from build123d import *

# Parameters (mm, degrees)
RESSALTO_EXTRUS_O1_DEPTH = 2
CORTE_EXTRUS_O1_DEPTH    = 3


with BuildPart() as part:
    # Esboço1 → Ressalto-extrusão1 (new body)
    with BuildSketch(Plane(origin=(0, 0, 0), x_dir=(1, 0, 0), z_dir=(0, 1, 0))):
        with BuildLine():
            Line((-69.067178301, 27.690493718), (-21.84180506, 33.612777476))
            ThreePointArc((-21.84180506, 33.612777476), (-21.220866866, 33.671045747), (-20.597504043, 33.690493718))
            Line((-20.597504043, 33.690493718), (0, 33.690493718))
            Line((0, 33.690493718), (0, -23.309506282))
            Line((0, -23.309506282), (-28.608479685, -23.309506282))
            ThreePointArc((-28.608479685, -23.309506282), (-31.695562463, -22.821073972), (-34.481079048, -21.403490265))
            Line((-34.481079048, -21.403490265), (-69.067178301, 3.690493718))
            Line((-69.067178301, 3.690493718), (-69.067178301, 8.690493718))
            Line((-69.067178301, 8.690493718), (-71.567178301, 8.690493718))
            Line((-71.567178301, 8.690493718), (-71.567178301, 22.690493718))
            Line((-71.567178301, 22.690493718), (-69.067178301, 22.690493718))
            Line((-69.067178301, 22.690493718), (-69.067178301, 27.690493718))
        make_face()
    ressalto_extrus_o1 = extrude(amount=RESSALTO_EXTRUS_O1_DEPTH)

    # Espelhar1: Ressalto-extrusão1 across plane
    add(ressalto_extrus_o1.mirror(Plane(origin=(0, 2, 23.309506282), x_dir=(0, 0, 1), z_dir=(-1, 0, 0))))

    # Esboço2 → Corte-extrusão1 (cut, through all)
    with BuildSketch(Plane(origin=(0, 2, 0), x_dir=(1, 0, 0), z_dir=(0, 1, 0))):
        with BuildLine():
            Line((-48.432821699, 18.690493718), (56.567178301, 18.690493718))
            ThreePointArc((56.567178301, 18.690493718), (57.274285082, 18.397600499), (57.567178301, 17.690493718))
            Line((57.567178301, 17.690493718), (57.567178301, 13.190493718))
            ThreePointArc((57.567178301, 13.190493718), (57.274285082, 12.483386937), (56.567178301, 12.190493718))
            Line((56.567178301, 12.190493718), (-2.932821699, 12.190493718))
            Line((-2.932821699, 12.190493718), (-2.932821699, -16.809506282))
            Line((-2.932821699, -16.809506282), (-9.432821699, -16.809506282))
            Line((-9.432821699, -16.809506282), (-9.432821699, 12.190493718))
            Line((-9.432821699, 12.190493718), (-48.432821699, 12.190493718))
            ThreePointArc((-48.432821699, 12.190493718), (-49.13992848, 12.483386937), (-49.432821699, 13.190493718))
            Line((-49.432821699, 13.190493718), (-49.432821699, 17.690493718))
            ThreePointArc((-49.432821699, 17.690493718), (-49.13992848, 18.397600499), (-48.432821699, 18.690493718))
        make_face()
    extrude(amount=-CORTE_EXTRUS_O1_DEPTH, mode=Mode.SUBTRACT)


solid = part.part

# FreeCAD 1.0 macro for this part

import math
import FreeCAD as App
import Part
import Sketcher
from FreeCAD import Vector

doc = App.newDocument("Part")
params = doc.addObject("Spreadsheet::Sheet", "Params")
for row, (alias, value) in enumerate([
    ("sketch1_radius", "10 mm"),
    ("sketch1_height", "5 mm"),
    ("sketch1_height2", "14 mm"),
    ("sketch1_height3", "57 mm"),
    ("sketch1_width", "2.5 mm"),
    ("pad1_length", "2 mm"),
    ("sketch2_radius", "1 mm"),
    ("sketch2_width", "105 mm"),
    ("sketch2_width2", "39 mm"),
    ("sketch2_height", "29 mm"),
    ("sketch2_width3", "6.5 mm"),
], start=1):
    params.set(f"A{row}", alias)
    params.set(f"B{row}", "=" + value)
    params.setAlias(f"B{row}", alias)

body = doc.addObject("PartDesign::Body", "Body")

# Sketch on XZ plane
sketch1 = body.newObject("Sketcher::SketchObject", "Sketch")
sketch1.AttachmentSupport = (doc.getObject("XZ_Plane"), [""])
sketch1.MapMode = "FlatFace"
sketch1.addGeometry(Part.LineSegment(Vector(-21.8, -33.6, 0), Vector(-69.1, -27.7, 0)), False)
sketch1.addGeometry(Part.LineSegment(Vector(-69.1, -27.7, 0), Vector(-69.1, -22.7, 0)), False)
sketch1.addGeometry(Part.LineSegment(Vector(-69.1, -22.7, 0), Vector(-71.6, -22.7, 0)), False)
sketch1.addGeometry(Part.LineSegment(Vector(-71.6, -22.7, 0), Vector(-71.6, -8.7, 0)), False)
sketch1.addGeometry(Part.LineSegment(Vector(-71.6, -8.7, 0), Vector(-69.1, -8.7, 0)), False)
sketch1.addGeometry(Part.LineSegment(Vector(-69.1, -8.7, 0), Vector(-69.1, -3.7, 0)), False)
sketch1.addGeometry(Part.LineSegment(Vector(-69.1, -3.7, 0), Vector(-34.5, 21.4, 0)), False)
sketch1.addGeometry(Part.ArcOfCircle(Part.Circle(Vector(-28.6, 13.3, 0), Vector(0, 0, 1), 10), math.radians(90), math.radians(126)), False)
sketch1.addGeometry(Part.LineSegment(Vector(-28.6, 23.3, 0), Vector(0, 23.3, 0)), False)
sketch1.addGeometry(Part.LineSegment(Vector(0, 23.3, 0), Vector(0, -33.7, 0)), False)
sketch1.addGeometry(Part.LineSegment(Vector(0, -33.7, 0), Vector(-20.6, -33.7, 0)), False)
sketch1.addGeometry(Part.ArcOfCircle(Part.Circle(Vector(-20.6, -23.7, 0), Vector(0, 0, 1), 10), math.radians(-97.15), math.radians(-90)), False)
sketch1.addConstraint(Sketcher.Constraint("Coincident", 0, 2, 1, 1))
sketch1.addConstraint(Sketcher.Constraint("Coincident", 1, 2, 2, 1))
sketch1.addConstraint(Sketcher.Constraint("Coincident", 2, 2, 3, 1))
sketch1.addConstraint(Sketcher.Constraint("Coincident", 3, 2, 4, 1))
sketch1.addConstraint(Sketcher.Constraint("Coincident", 4, 2, 5, 1))
sketch1.addConstraint(Sketcher.Constraint("Coincident", 5, 2, 6, 1))
sketch1.addConstraint(Sketcher.Constraint("Tangent", 6, 2, 7, 2))
sketch1.addConstraint(Sketcher.Constraint("Tangent", 7, 1, 8, 1))
sketch1.addConstraint(Sketcher.Constraint("Coincident", 8, 2, 9, 1))
sketch1.addConstraint(Sketcher.Constraint("Coincident", 9, 2, 10, 1))
sketch1.addConstraint(Sketcher.Constraint("Tangent", 10, 2, 11, 2))
sketch1.addConstraint(Sketcher.Constraint("Tangent", 11, 1, 0, 1))
sketch1.addConstraint(Sketcher.Constraint("Vertical", 1))
sketch1.addConstraint(Sketcher.Constraint("Horizontal", 2))
sketch1.addConstraint(Sketcher.Constraint("Vertical", 3))
sketch1.addConstraint(Sketcher.Constraint("Horizontal", 4))
sketch1.addConstraint(Sketcher.Constraint("Vertical", 5))
sketch1.addConstraint(Sketcher.Constraint("Horizontal", 8))
sketch1.addConstraint(Sketcher.Constraint("Vertical", 9))
sketch1.addConstraint(Sketcher.Constraint("Horizontal", 10))
sketch1.addConstraint(Sketcher.Constraint("Equal", 7, 11))
sketch1.addConstraint(Sketcher.Constraint("PointOnObject", 8, 2, -2))
sketch1.addConstraint(Sketcher.Constraint("Vertical", 1, 2, 4, 2))
sketch1.addConstraint(Sketcher.Constraint("Equal", 1, 5))
sketch1.addConstraint(Sketcher.Constraint("Radius", 7, 10.0))
sketch1.addConstraint(Sketcher.Constraint("DistanceY", 1, 1, 1, 2, 5.0))
sketch1.addConstraint(Sketcher.Constraint("DistanceY", 3, 1, 3, 2, 14.0))
sketch1.addConstraint(Sketcher.Constraint("DistanceY", 9, 2, 9, 1, 57.0))
sketch1.addConstraint(Sketcher.Constraint("DistanceX", 2, 2, 2, 1, 2.5))
sketch1.addConstraint(Sketcher.Constraint("DistanceY", 0, 2, 11, 3, 4.0))
sketch1.addConstraint(Sketcher.Constraint("DistanceX", 8, 1, 8, 2, 28.60848))
sketch1.addConstraint(Sketcher.Constraint("DistanceX", 0, 2, 7, 3, 40.458699))
sketch1.addConstraint(Sketcher.Constraint("DistanceX", 10, 2, 10, 1, 20.597504))
sketch1.addConstraint(Sketcher.Constraint("DistanceY", -1, 1, 6, 2, 21.40349))
sketch1.setExpression("Constraints[24]", "Params.sketch1_radius")
sketch1.setExpression("Constraints[25]", "Params.sketch1_height")
sketch1.setExpression("Constraints[26]", "Params.sketch1_height2")
sketch1.setExpression("Constraints[27]", "Params.sketch1_height3")
sketch1.setExpression("Constraints[28]", "Params.sketch1_width")
pad1 = body.newObject("PartDesign::Pad", "Pad")
pad1.Profile = sketch1
pad1.setExpression("Length", "Params.pad1_length")
pad1.Reversed = True
doc.recompute()

mirrored = body.newObject("PartDesign::Mirrored", "Mirrored")
mirrored.Originals = [pad1]
mirrored.MirrorPlane = (doc.getObject("YZ_Plane"), [""])
body.Tip = mirrored

# Sketch on XZ plane
sketch2 = body.newObject("Sketcher::SketchObject", "Sketch001")
sketch2.AttachmentSupport = (doc.getObject("XZ_Plane"), [""])
sketch2.MapMode = "FlatFace"
sketch2.AttachmentOffset = App.Placement(Vector(0, 0, -2), App.Rotation())
sketch2.addGeometry(Part.LineSegment(Vector(56.6, -18.7, 0), Vector(-48.4, -18.7, 0)), False)
sketch2.addGeometry(Part.ArcOfCircle(Part.Circle(Vector(-48.4, -17.7, 0), Vector(0, 0, 1), 1), math.radians(-180), math.radians(-90)), False)
sketch2.addGeometry(Part.LineSegment(Vector(-49.4, -17.7, 0), Vector(-49.4, -13.2, 0)), False)
sketch2.addGeometry(Part.ArcOfCircle(Part.Circle(Vector(-48.4, -13.2, 0), Vector(0, 0, 1), 1), math.radians(90), math.radians(180)), False)
sketch2.addGeometry(Part.LineSegment(Vector(-48.4, -12.2, 0), Vector(-9.4, -12.2, 0)), False)
sketch2.addGeometry(Part.LineSegment(Vector(-9.4, -12.2, 0), Vector(-9.4, 16.8, 0)), False)
sketch2.addGeometry(Part.LineSegment(Vector(-9.4, 16.8, 0), Vector(-2.9, 16.8, 0)), False)
sketch2.addGeometry(Part.LineSegment(Vector(-2.9, 16.8, 0), Vector(-2.9, -12.2, 0)), False)
sketch2.addGeometry(Part.LineSegment(Vector(-2.9, -12.2, 0), Vector(56.6, -12.2, 0)), False)
sketch2.addGeometry(Part.ArcOfCircle(Part.Circle(Vector(56.6, -13.2, 0), Vector(0, 0, 1), 1), math.radians(0), math.radians(90)), False)
sketch2.addGeometry(Part.LineSegment(Vector(57.6, -13.2, 0), Vector(57.6, -17.7, 0)), False)
sketch2.addGeometry(Part.ArcOfCircle(Part.Circle(Vector(56.6, -17.7, 0), Vector(0, 0, 1), 1), math.radians(-90), math.radians(0)), False)
sketch2.addConstraint(Sketcher.Constraint("Tangent", 0, 2, 1, 2))
sketch2.addConstraint(Sketcher.Constraint("Tangent", 1, 1, 2, 1))
sketch2.addConstraint(Sketcher.Constraint("Tangent", 2, 2, 3, 2))
sketch2.addConstraint(Sketcher.Constraint("Tangent", 3, 1, 4, 1))
sketch2.addConstraint(Sketcher.Constraint("Coincident", 4, 2, 5, 1))
sketch2.addConstraint(Sketcher.Constraint("Coincident", 5, 2, 6, 1))
sketch2.addConstraint(Sketcher.Constraint("Coincident", 6, 2, 7, 1))
sketch2.addConstraint(Sketcher.Constraint("Coincident", 7, 2, 8, 1))
sketch2.addConstraint(Sketcher.Constraint("Tangent", 8, 2, 9, 2))
sketch2.addConstraint(Sketcher.Constraint("Tangent", 9, 1, 10, 1))
sketch2.addConstraint(Sketcher.Constraint("Tangent", 10, 2, 11, 2))
sketch2.addConstraint(Sketcher.Constraint("Tangent", 11, 1, 0, 1))
sketch2.addConstraint(Sketcher.Constraint("Horizontal", 0))
sketch2.addConstraint(Sketcher.Constraint("Vertical", 2))
sketch2.addConstraint(Sketcher.Constraint("Horizontal", 4))
sketch2.addConstraint(Sketcher.Constraint("Vertical", 5))
sketch2.addConstraint(Sketcher.Constraint("Horizontal", 6))
sketch2.addConstraint(Sketcher.Constraint("Vertical", 7))
sketch2.addConstraint(Sketcher.Constraint("Horizontal", 8))
sketch2.addConstraint(Sketcher.Constraint("Vertical", 10))
sketch2.addConstraint(Sketcher.Constraint("Equal", 1, 3))
sketch2.addConstraint(Sketcher.Constraint("Equal", 3, 9))
sketch2.addConstraint(Sketcher.Constraint("Equal", 9, 11))
sketch2.addConstraint(Sketcher.Constraint("Horizontal", 3, 3, 9, 3))
sketch2.addConstraint(Sketcher.Constraint("Radius", 1, 1.0))
sketch2.addConstraint(Sketcher.Constraint("DistanceX", 0, 2, 0, 1, 105.0))
sketch2.addConstraint(Sketcher.Constraint("DistanceX", 4, 1, 4, 2, 39.0))
sketch2.addConstraint(Sketcher.Constraint("DistanceY", 5, 1, 5, 2, 29.0))
sketch2.addConstraint(Sketcher.Constraint("DistanceX", 6, 1, 6, 2, 6.5))
sketch2.addConstraint(Sketcher.Constraint("DistanceY", 2, 1, 2, 2, 4.5))
sketch2.addConstraint(Sketcher.Constraint("DistanceX", 1, 3, -1, 1, 48.432822))
sketch2.addConstraint(Sketcher.Constraint("DistanceY", 1, 3, -1, 1, 17.690494))
sketch2.setExpression("Constraints[24]", "Params.sketch2_radius")
sketch2.setExpression("Constraints[25]", "Params.sketch2_width")
sketch2.setExpression("Constraints[26]", "Params.sketch2_width2")
sketch2.setExpression("Constraints[27]", "Params.sketch2_height")
sketch2.setExpression("Constraints[28]", "Params.sketch2_width3")
pocket1 = body.newObject("PartDesign::Pocket", "Pocket")
pocket1.Profile = sketch2
pocket1.Type = "ThroughAll"
pocket1.Reversed = True

doc.recompute()
